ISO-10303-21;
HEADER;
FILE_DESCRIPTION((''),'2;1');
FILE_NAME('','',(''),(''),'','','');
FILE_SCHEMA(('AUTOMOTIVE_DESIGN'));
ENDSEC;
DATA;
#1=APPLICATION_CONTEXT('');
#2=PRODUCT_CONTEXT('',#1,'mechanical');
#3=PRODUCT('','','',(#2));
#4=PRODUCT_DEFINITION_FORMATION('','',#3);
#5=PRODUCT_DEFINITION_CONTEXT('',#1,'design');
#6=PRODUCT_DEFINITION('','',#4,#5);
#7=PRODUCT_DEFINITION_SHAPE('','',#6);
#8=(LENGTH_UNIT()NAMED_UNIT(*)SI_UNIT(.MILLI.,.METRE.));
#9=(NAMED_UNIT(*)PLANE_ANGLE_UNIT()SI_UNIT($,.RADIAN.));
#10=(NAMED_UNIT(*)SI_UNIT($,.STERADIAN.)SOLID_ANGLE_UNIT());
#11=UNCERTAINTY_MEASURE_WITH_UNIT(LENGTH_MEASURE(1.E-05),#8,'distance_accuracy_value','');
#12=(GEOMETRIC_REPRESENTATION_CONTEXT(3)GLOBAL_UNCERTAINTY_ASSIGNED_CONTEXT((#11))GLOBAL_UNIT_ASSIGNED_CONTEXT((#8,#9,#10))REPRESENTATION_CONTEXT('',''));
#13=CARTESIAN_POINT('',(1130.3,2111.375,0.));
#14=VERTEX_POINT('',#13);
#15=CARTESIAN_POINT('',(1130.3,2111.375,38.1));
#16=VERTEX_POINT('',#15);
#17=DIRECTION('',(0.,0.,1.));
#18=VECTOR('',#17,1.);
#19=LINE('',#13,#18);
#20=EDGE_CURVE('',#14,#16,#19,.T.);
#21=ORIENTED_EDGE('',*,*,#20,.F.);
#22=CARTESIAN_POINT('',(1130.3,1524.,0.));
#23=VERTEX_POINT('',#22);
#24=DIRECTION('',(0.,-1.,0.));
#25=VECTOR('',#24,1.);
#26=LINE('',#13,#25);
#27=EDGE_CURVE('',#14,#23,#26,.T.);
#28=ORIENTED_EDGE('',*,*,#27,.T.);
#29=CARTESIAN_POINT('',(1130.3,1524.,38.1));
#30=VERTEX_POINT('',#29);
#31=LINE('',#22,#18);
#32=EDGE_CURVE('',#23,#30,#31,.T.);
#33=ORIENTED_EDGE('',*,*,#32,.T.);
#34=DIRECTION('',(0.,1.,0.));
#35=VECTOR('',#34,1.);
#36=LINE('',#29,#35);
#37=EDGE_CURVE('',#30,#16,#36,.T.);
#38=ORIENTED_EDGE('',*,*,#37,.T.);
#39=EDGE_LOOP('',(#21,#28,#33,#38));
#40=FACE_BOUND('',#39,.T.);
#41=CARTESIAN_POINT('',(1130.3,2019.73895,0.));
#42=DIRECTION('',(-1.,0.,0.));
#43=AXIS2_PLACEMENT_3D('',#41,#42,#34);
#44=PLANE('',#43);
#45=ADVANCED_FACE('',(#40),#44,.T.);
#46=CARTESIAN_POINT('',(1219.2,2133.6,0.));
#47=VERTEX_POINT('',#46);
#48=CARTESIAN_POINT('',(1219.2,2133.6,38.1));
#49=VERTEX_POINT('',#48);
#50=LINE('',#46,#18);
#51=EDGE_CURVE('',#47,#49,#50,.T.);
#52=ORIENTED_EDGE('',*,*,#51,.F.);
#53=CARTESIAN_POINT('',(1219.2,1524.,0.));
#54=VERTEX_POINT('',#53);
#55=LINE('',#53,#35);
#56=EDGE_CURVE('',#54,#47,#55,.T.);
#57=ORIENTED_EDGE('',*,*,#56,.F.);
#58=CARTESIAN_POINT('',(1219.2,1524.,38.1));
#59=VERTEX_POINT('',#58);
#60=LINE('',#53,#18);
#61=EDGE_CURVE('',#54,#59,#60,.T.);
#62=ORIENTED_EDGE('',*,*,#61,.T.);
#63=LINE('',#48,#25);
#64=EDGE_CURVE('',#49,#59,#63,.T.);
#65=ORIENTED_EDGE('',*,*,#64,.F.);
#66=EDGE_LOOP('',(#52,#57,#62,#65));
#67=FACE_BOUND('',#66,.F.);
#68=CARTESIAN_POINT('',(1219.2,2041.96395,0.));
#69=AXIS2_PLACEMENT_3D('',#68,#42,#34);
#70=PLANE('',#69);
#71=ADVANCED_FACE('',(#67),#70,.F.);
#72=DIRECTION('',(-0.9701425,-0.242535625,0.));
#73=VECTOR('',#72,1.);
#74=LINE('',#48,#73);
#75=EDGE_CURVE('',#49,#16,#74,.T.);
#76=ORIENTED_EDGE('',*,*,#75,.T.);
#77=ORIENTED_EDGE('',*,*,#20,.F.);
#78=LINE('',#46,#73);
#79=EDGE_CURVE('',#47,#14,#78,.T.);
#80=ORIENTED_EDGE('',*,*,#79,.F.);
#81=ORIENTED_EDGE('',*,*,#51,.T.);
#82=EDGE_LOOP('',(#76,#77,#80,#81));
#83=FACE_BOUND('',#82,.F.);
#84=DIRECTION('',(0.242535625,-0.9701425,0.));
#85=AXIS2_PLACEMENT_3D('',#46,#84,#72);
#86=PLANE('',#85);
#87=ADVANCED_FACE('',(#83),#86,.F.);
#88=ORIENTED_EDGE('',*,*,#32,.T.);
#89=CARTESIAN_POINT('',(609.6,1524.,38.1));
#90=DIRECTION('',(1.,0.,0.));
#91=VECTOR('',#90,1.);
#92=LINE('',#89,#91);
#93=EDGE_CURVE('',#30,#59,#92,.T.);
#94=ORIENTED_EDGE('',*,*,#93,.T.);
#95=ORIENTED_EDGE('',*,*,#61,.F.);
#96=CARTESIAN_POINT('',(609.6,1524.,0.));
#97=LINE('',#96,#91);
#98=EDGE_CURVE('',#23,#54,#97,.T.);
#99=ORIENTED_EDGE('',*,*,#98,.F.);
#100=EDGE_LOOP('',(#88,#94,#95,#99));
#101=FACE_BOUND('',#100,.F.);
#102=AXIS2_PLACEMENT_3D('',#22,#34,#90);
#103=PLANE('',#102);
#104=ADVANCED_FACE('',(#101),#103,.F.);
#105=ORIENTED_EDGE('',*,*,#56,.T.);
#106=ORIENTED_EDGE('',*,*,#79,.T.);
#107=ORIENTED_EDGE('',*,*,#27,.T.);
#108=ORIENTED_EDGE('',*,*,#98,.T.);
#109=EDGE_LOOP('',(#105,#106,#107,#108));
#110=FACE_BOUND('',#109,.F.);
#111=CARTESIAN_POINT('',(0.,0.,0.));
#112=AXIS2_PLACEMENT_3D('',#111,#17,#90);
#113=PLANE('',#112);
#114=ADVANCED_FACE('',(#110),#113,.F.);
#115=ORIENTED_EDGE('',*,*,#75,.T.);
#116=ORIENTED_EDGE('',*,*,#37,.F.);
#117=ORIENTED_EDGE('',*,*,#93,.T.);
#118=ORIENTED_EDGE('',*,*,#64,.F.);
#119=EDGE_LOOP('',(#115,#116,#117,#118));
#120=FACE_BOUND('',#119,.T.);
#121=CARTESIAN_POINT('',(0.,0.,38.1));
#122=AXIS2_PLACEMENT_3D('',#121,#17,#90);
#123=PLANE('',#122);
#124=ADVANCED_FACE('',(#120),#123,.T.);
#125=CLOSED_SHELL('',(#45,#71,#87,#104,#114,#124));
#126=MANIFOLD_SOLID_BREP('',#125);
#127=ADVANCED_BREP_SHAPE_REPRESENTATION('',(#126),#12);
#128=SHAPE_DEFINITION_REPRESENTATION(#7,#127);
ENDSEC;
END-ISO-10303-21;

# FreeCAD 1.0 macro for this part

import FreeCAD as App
import Part
import Sketcher
Q = App.Units.Quantity


def add_polygon(sketch, points):
    """Adds a closed chain of lines whose ends are joined by coincident constraints."""
    first, n = sketch.GeometryCount, len(points)
    for a, b in zip(points, points[1:] + points[:1]):
        sketch.addGeometry(Part.LineSegment(App.Vector(*a, 0), App.Vector(*b, 0)), False)
    for i in range(n):
        sketch.addConstraint(Sketcher.Constraint("Coincident", first + i, 2, first + (i + 1) % n, 1))

doc = App.newDocument("Part")
body = doc.addObject("PartDesign::Body", "Body")

sketch1 = body.newObject("Sketcher::SketchObject", "Sketch")
sketch1.AttachmentSupport = (doc.getObject("XY_Plane"), [""])
sketch1.MapMode = "FlatFace"
add_polygon(sketch1, [(1219, 2134), (1130, 2111), (1130, 1524), (1219, 1524)])
sketch1.addConstraint([
    Sketcher.Constraint("Vertical", 1),
    Sketcher.Constraint("Horizontal", 2),
    Sketcher.Constraint("Vertical", 3),
    Sketcher.Constraint("DistanceY", 3, 1, 3, 2, Q("24 in")),
    Sketcher.Constraint("DistanceX", 2, 1, 2, 2, Q("3.5 in")),
    Sketcher.Constraint("DistanceY", -1, 1, 1, 2, Q("60 in")),
    Sketcher.Constraint("DistanceX", -1, 1, 2, 2, Q("48 in")),
    Sketcher.Constraint("DistanceY", 1, 2, 1, 1, Q("23.125 in")),
])
pad1 = body.newObject("PartDesign::Pad", "Pad")
pad1.Profile = sketch1
pad1.Length = Q("1.5 in")

doc.recompute()
